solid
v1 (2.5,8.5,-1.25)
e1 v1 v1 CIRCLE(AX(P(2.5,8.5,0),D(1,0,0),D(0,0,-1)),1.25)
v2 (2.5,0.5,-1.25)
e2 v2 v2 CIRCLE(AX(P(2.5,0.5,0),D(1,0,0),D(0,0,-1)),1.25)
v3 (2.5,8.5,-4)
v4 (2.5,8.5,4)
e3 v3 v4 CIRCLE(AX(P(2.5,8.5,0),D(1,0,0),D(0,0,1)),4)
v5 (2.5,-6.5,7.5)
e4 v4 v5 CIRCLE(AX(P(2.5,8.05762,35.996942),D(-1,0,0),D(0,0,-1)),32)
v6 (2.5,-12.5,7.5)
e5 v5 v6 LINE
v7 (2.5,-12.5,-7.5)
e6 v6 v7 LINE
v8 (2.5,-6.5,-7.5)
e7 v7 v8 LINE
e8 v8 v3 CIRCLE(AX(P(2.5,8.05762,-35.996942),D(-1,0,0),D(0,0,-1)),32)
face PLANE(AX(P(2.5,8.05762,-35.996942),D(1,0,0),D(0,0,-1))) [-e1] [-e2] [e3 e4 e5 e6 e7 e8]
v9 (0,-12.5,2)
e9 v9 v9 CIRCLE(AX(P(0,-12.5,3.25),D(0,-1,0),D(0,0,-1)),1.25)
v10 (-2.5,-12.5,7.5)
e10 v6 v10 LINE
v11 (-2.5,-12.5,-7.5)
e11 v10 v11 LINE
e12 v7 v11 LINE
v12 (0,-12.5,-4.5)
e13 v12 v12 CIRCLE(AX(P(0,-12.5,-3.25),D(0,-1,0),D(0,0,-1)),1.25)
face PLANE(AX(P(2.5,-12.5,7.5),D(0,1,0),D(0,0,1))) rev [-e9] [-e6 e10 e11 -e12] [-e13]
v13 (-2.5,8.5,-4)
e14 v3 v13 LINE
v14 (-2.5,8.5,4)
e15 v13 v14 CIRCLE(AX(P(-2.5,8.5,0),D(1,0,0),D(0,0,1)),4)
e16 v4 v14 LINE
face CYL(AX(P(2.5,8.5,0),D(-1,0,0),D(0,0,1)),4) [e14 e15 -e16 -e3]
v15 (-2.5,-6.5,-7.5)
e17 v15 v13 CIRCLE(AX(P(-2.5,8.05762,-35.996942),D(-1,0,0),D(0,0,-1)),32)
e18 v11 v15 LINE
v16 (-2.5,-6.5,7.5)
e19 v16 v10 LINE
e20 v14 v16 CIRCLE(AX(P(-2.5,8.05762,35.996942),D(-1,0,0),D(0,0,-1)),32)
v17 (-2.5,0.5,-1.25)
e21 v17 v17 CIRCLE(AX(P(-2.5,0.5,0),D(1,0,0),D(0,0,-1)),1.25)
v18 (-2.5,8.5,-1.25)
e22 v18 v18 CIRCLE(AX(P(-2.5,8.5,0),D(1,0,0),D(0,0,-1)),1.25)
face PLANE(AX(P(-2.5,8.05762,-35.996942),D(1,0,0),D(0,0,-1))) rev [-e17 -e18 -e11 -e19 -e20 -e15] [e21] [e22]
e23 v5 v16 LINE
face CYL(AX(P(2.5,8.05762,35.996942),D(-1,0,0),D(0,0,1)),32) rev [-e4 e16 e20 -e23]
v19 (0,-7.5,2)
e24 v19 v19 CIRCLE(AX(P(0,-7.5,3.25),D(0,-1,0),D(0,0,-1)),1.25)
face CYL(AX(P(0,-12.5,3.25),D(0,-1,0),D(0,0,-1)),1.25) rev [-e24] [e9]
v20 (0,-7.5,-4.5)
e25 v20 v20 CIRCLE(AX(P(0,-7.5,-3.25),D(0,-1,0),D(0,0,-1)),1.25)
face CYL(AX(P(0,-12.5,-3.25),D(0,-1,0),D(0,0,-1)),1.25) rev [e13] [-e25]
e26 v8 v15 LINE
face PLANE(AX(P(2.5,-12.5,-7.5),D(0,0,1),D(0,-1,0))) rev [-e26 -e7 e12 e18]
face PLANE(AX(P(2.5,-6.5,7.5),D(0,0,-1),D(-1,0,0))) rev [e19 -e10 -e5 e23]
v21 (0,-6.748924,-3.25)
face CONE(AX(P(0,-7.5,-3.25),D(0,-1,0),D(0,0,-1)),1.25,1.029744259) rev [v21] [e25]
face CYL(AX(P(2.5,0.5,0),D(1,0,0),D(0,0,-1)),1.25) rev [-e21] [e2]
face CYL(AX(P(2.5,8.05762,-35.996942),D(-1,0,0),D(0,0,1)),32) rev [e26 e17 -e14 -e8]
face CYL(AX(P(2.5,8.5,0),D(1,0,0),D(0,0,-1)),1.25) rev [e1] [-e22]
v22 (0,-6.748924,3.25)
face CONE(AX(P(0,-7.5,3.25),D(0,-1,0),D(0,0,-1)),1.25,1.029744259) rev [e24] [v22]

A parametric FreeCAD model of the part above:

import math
import FreeCAD as App
import Part
import Sketcher

doc = App.newDocument("Part")
body = doc.addObject("PartDesign::Body", "Body")

# Sketch on YZ plane
sketch1 = body.newObject("Sketcher::SketchObject", "Sketch")
sketch1.AttachmentSupport = (doc.getObject("YZ_Plane"), [""])
sketch1.MapMode = "FlatFace"
sketch1.addGeometry(Part.LineSegment(App.Vector(-12.5, 7.5, 0), App.Vector(-12.5, -7.5, 0)), False)
sketch1.addGeometry(Part.LineSegment(App.Vector(-12.5, -7.5, 0), App.Vector(-6.5, -7.5, 0)), False)
sketch1.addGeometry(Part.ArcOfCircle(Part.Circle(App.Vector(8.05762, -35.996942, 0), App.Vector(0, 0, 1), 32), math.radians(89.207896), math.radians(117.060149)), False)
sketch1.addGeometry(Part.ArcOfCircle(Part.Circle(App.Vector(8.5, 0, 0), App.Vector(0, 0, 1), 4), math.radians(-90), math.radians(90)), False)
sketch1.addGeometry(Part.ArcOfCircle(Part.Circle(App.Vector(8.05762, 35.996942, 0), App.Vector(0, 0, 1), 32), math.radians(-117.060149), math.radians(-89.207896)), False)
sketch1.addGeometry(Part.LineSegment(App.Vector(-6.5, 7.5, 0), App.Vector(-12.5, 7.5, 0)), False)
sketch1.addConstraint(Sketcher.Constraint("Coincident", 0, 2, 1, 1))
sketch1.addConstraint(Sketcher.Constraint("Coincident", 1, 2, 2, 2))
sketch1.addConstraint(Sketcher.Constraint("Coincident", 2, 1, 3, 1))
sketch1.addConstraint(Sketcher.Constraint("Coincident", 3, 2, 4, 2))
sketch1.addConstraint(Sketcher.Constraint("Coincident", 4, 1, 5, 1))
sketch1.addConstraint(Sketcher.Constraint("Coincident", 5, 2, 0, 1))
sketch1.addConstraint(Sketcher.Constraint("Vertical", 0))
sketch1.addConstraint(Sketcher.Constraint("Horizontal", 1))
sketch1.addConstraint(Sketcher.Constraint("Horizontal", 5))
sketch1.addConstraint(Sketcher.Constraint("Equal", 2, 4))
sketch1.addConstraint(Sketcher.Constraint("Symmetric", 2, 3, 4, 3, -1))
sketch1.addConstraint(Sketcher.Constraint("PointOnObject", 3, 3, -1))
sketch1.addConstraint(Sketcher.Constraint("Vertical", 3, 3, 2, 1))
sketch1.addConstraint(Sketcher.Constraint("Vertical", 1, 2, 4, 1))
sketch1.addConstraint(Sketcher.Constraint("Radius", 2, 32.0))
sketch1.addConstraint(Sketcher.Constraint("Radius", 3, 4.0))
sketch1.addConstraint(Sketcher.Constraint("DistanceX", 1, 1, 1, 2, 6.0))
sketch1.addConstraint(Sketcher.Constraint("DistanceY", 0, 2, 0, 1, 15.0))
sketch1.addConstraint(Sketcher.Constraint("DistanceX", 0, 2, 3, 3, 21.0))
sketch1.addConstraint(Sketcher.Constraint("DistanceX", -1, 1, 3, 3, 8.5))
pad1 = body.newObject("PartDesign::Pad", "Pad")
pad1.Profile = sketch1
pad1.Length = 5
pad1.Midplane = True

# Sketch on YZ plane
sketch2 = body.newObject("Sketcher::SketchObject", "Sketch001")
sketch2.AttachmentSupport = (doc.getObject("YZ_Plane"), [""])
sketch2.MapMode = "FlatFace"
sketch2.AttachmentOffset = App.Placement(App.Vector(0, 0, 2.5), App.Rotation())
sketch2.addGeometry(Part.Circle(App.Vector(8.5, 0, 0), App.Vector(0, 0, 1), 1.25), False)
sketch2.addGeometry(Part.Circle(App.Vector(0.5, 0, 0), App.Vector(0, 0, 1), 1.25), False)
sketch2.addConstraint(Sketcher.Constraint("Equal", 0, 1))
sketch2.addConstraint(Sketcher.Constraint("PointOnObject", 0, 3, -1))
sketch2.addConstraint(Sketcher.Constraint("PointOnObject", 1, 3, -1))
sketch2.addConstraint(Sketcher.Constraint("Diameter", 0, 2.5))
sketch2.addConstraint(Sketcher.Constraint("DistanceX", 1, 3, 0, 3, 8.0))
sketch2.addConstraint(Sketcher.Constraint("DistanceX", -1, 1, 0, 3, 8.5))
doc.recompute()
hole = body.newObject("PartDesign::Hole", "Hole")
hole.Profile = sketch2
hole.ThreadType = "None"
hole.Diameter = 2.5
hole.DepthType = "ThroughAll"

# Sketch on XZ plane
sketch3 = body.newObject("Sketcher::SketchObject", "Sketch002")
sketch3.AttachmentSupport = (doc.getObject("XZ_Plane"), [""])
sketch3.MapMode = "FlatFace"
sketch3.AttachmentOffset = App.Placement(App.Vector(0, 0, 12.5), App.Rotation())
sketch3.addGeometry(Part.Circle(App.Vector(0, 3.25, 0), App.Vector(0, 0, 1), 1.25), False)
sketch3.addGeometry(Part.Circle(App.Vector(0, -3.25, 0), App.Vector(0, 0, 1), 1.25), False)
sketch3.addConstraint(Sketcher.Constraint("Equal", 0, 1))
sketch3.addConstraint(Sketcher.Constraint("Symmetric", 0, 3, 1, 3, -1, 1))
sketch3.addConstraint(Sketcher.Constraint("PointOnObject", 0, 3, -2))
sketch3.addConstraint(Sketcher.Constraint("Diameter", 0, 2.5))
sketch3.addConstraint(Sketcher.Constraint("DistanceY", 1, 3, 0, 3, 6.5))
doc.recompute()
hole2 = body.newObject("PartDesign::Hole", "Hole001")
hole2.Profile = sketch3
hole2.ThreadType = "None"
hole2.Diameter = 2.5
hole2.DepthType = "Dimension"
hole2.Depth = 5
hole2.DrillPoint = "Angled"
hole2.DrillPointAngle = 118

doc.recompute()
